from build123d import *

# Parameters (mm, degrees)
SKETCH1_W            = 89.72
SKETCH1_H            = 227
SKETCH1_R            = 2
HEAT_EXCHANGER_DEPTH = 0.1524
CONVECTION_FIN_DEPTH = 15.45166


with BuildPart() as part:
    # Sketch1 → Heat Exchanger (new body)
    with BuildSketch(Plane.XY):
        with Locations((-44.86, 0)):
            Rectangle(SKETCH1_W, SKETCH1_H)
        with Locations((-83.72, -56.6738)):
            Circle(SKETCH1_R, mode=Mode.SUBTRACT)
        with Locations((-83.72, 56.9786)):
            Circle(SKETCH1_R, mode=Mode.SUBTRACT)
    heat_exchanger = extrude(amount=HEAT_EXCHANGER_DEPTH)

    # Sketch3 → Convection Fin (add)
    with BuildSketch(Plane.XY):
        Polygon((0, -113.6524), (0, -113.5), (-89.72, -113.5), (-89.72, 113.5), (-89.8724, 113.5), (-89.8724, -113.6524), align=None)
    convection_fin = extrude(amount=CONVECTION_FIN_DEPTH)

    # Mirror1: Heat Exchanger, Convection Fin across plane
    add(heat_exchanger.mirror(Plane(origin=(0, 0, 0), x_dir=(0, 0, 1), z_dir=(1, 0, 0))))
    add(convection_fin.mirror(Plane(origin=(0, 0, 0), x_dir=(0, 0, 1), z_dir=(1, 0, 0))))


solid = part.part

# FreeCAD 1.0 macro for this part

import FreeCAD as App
import Part
import Sketcher

doc = App.newDocument("Part")
params = doc.addObject("Spreadsheet::Sheet", "Params")
for row, (alias, value) in enumerate([
    ("sketch1_diameter", "4 mm"),
    ("sketch1_height", "227 mm"),
    ("sketch1_width", "89.72 mm"),
    ("pad1_length", "0.1524 mm"),
    ("sketch2_height", "227 mm"),
    ("sketch2_width", "89.72 mm"),
    ("pad2_length", "15.45166 mm"),
], start=1):
    params.set(f"A{row}", alias)
    params.set(f"B{row}", "=" + value)
    params.setAlias(f"B{row}", alias)

body = doc.addObject("PartDesign::Body", "Body")

# Sketch on XY plane
sketch1 = doc.addObject("Sketcher::SketchObject", "Sketch")
body.addObject(sketch1)
sketch1.AttachmentSupport = (doc.XY_Plane, [""])
sketch1.MapMode = "FlatFace"
sketch1.addGeometry([
    Part.LineSegment(App.Vector(-89.72, 113.5, 0), App.Vector(-89.72, -113.5, 0)),  # 0
    Part.LineSegment(App.Vector(-89.72, -113.5, 0), App.Vector(0, -113.5, 0)),  # 1
    Part.LineSegment(App.Vector(0, -113.5, 0), App.Vector(0, 113.5, 0)),  # 2
    Part.LineSegment(App.Vector(0, 113.5, 0), App.Vector(-89.72, 113.5, 0)),  # 3
    Part.Circle(App.Vector(-83.72, -56.6738, 0), App.Vector(0, 0, 1), 2),  # 4
    Part.Circle(App.Vector(-83.72, 56.9786, 0), App.Vector(0, 0, 1), 2),  # 5
], False)
sketch1.addConstraint([
    Sketcher.Constraint("Coincident", 0, 2, 1, 1),
    Sketcher.Constraint("Coincident", 1, 2, 2, 1),
    Sketcher.Constraint("Coincident", 2, 2, 3, 1),
    Sketcher.Constraint("Coincident", 3, 2, 0, 1),
    Sketcher.Constraint("Vertical", 0),
    Sketcher.Constraint("Horizontal", 1),
    Sketcher.Constraint("Vertical", 2),
    Sketcher.Constraint("Horizontal", 3),
    Sketcher.Constraint("Equal", 4, 5),
    Sketcher.Constraint("Symmetric", 1, 2, 2, 2, -1, 1),
    Sketcher.Constraint("Vertical", 4, 3, 5, 3),
    Sketcher.Constraint("Diameter", 4, 4.0),
    Sketcher.Constraint("DistanceY", 0, 2, 0, 1, 227.0),
    Sketcher.Constraint("DistanceX", 0, 2, 4, 3, 6.0),
    Sketcher.Constraint("DistanceX", 1, 1, 1, 2, 89.72),
    Sketcher.Constraint("DistanceY", 4, 3, -1, 1, 56.6738),
    Sketcher.Constraint("DistanceY", -1, 1, 5, 3, 56.9786),
])
sketch1.setExpression("Constraints[11]", "Params.sketch1_diameter")
sketch1.setExpression("Constraints[12]", "Params.sketch1_height")
sketch1.setExpression("Constraints[14]", "Params.sketch1_width")
pad1 = doc.addObject("PartDesign::Pad", "Pad")
body.addObject(pad1)
pad1.Profile = sketch1
pad1.setExpression("Length", "Params.pad1_length")

# Sketch on XY plane
sketch2 = doc.addObject("Sketcher::SketchObject", "Sketch001")
body.addObject(sketch2)
sketch2.AttachmentSupport = (doc.XY_Plane, [""])
sketch2.MapMode = "FlatFace"
sketch2.addGeometry([
    Part.LineSegment(App.Vector(0, -113.6524, 0), App.Vector(0, -113.5, 0)),  # 0
    Part.LineSegment(App.Vector(0, -113.5, 0), App.Vector(-89.72, -113.5, 0)),  # 1
    Part.LineSegment(App.Vector(-89.72, -113.5, 0), App.Vector(-89.72, 113.5, 0)),  # 2
    Part.LineSegment(App.Vector(-89.72, 113.5, 0), App.Vector(-89.8724, 113.5, 0)),  # 3
    Part.LineSegment(App.Vector(-89.8724, 113.5, 0), App.Vector(-89.8724, -113.6524, 0)),  # 4
    Part.LineSegment(App.Vector(-89.8724, -113.6524, 0), App.Vector(0, -113.6524, 0)),  # 5
], False)
sketch2.addConstraint([
    Sketcher.Constraint("Coincident", 0, 2, 1, 1),
    Sketcher.Constraint("Coincident", 1, 2, 2, 1),
    Sketcher.Constraint("Coincident", 2, 2, 3, 1),
    Sketcher.Constraint("Coincident", 3, 2, 4, 1),
    Sketcher.Constraint("Coincident", 4, 2, 5, 1),
    Sketcher.Constraint("Coincident", 5, 2, 0, 1),
    Sketcher.Constraint("Vertical", 0),
    Sketcher.Constraint("Horizontal", 1),
    Sketcher.Constraint("Vertical", 2),
    Sketcher.Constraint("Horizontal", 3),
    Sketcher.Constraint("Vertical", 4),
    Sketcher.Constraint("Horizontal", 5),
    Sketcher.Constraint("PointOnObject", 0, 2, -2),
    Sketcher.Constraint("Equal", 3, 0),
    Sketcher.Constraint("DistanceY", 2, 1, 2, 2, 227.0),
    Sketcher.Constraint("DistanceX", 1, 2, 1, 1, 89.72),
    Sketcher.Constraint("DistanceY", 0, 2, -1, 1, 113.5),
    Sketcher.Constraint("DistanceX", 3, 2, 3, 1, 0.1524),
])
sketch2.setExpression("Constraints[14]", "Params.sketch2_height")
sketch2.setExpression("Constraints[15]", "Params.sketch2_width")
pad2 = doc.addObject("PartDesign::Pad", "Pad001")
body.addObject(pad2)
pad2.Profile = sketch2
pad2.setExpression("Length", "Params.pad2_length")
doc.recompute()

mirrored = doc.addObject("PartDesign::Mirrored", "Mirrored")
body.addObject(mirrored)
mirrored.Originals = [pad1, pad2]
mirrored.MirrorPlane = (doc.YZ_Plane, [""])
body.Tip = mirrored

doc.recompute()
